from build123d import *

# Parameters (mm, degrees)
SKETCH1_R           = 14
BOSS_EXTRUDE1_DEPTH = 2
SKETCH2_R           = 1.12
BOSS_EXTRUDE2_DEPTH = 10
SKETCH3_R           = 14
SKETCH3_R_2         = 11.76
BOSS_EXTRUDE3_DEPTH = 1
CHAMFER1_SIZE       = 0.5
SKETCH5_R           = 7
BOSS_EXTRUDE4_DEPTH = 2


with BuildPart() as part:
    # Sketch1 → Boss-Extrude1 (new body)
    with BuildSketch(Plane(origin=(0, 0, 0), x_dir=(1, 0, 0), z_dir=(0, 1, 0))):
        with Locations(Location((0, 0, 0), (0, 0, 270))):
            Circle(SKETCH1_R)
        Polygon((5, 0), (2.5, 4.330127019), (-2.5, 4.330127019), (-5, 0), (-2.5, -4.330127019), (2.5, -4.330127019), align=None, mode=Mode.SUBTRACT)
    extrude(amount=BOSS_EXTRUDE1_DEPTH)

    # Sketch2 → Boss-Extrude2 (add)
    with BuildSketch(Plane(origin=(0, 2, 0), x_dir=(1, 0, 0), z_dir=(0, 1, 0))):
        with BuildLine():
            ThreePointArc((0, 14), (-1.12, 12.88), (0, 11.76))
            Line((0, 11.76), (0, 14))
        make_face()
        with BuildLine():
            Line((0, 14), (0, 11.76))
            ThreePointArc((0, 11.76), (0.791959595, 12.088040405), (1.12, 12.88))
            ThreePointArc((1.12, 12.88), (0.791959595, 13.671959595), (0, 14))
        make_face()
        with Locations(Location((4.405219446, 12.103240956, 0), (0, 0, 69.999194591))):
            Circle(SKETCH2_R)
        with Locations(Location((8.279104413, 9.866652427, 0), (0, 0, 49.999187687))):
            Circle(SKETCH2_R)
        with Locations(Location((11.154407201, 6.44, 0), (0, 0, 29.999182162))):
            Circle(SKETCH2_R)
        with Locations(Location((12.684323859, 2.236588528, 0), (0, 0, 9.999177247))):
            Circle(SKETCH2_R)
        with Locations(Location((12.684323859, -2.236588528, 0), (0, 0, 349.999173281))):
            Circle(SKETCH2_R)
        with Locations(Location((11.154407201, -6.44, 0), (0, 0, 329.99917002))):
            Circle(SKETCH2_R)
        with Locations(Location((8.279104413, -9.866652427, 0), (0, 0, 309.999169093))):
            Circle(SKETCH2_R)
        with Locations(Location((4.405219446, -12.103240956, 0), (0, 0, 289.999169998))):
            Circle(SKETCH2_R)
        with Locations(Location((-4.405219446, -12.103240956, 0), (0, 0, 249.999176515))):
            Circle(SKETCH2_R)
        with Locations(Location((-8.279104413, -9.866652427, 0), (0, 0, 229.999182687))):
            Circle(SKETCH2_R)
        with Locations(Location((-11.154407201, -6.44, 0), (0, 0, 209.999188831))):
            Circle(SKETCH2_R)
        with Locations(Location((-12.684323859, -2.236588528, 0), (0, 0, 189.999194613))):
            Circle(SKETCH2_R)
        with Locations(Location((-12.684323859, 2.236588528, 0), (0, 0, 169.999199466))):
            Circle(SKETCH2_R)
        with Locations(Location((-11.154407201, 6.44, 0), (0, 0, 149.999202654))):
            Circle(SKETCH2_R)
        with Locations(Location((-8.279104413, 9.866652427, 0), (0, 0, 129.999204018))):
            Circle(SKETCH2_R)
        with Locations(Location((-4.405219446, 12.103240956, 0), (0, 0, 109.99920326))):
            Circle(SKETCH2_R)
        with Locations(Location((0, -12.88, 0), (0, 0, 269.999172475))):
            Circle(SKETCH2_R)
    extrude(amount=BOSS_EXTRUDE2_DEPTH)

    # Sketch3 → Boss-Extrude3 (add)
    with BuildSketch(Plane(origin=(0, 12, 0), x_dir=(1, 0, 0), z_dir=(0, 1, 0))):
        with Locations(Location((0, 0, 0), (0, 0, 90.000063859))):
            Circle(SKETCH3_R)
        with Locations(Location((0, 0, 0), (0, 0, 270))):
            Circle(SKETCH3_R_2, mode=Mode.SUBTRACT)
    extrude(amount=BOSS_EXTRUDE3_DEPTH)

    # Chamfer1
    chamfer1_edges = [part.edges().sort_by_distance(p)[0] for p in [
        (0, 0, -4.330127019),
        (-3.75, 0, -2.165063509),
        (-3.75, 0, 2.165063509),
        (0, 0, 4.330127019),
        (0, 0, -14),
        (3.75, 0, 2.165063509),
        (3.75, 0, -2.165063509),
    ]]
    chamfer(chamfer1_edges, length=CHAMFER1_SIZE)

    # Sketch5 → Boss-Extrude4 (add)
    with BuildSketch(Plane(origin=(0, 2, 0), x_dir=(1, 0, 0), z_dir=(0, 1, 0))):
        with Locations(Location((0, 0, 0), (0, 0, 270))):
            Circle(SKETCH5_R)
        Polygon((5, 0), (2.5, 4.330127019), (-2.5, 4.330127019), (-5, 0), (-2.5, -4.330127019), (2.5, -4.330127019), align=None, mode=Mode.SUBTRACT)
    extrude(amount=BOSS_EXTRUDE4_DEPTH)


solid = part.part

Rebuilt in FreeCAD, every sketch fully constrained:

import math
import FreeCAD as App
import Part
import Sketcher
from FreeCAD import Vector
Q = App.Units.Quantity


def edges_at(feature, points):
    """Names of the edges that pass closest to the given points."""
    edges = feature.Shape.Edges
    near = lambda p: min(range(len(edges)), key=lambda i: edges[i].distToShape(Part.Vertex(*p))[0])
    return sorted({f"Edge{near(p) + 1}" for p in points})

doc = App.newDocument("Part")
body = doc.addObject("PartDesign::Body", "Body")

# Sketch on XZ plane
sketch1 = body.newObject("Sketcher::SketchObject", "Sketch")
sketch1.AttachmentSupport = (doc.getObject("XZ_Plane"), [""])
sketch1.MapMode = "FlatFace"
sketch1.addGeometry([
    Part.Circle(Vector(0, 0, 0), Vector(0, 0, 1), 14),  # 0
    Part.LineSegment(Vector(2.5, -4.330127, 0), Vector(5, 0, 0)),  # 1
    Part.LineSegment(Vector(5, 0, 0), Vector(2.5, 4.330127, 0)),  # 2
    Part.LineSegment(Vector(2.5, 4.330127, 0), Vector(-2.5, 4.330127, 0)),  # 3
    Part.LineSegment(Vector(-2.5, 4.330127, 0), Vector(-5, 0, 0)),  # 4
    Part.LineSegment(Vector(-5, 0, 0), Vector(-2.5, -4.330127, 0)),  # 5
    Part.LineSegment(Vector(-2.5, -4.330127, 0), Vector(2.5, -4.330127, 0)),  # 6
], False)
sketch1.addConstraint([
    Sketcher.Constraint("Coincident", 1, 2, 2, 1),
    Sketcher.Constraint("Coincident", 2, 2, 3, 1),
    Sketcher.Constraint("Coincident", 3, 2, 4, 1),
    Sketcher.Constraint("Coincident", 4, 2, 5, 1),
    Sketcher.Constraint("Coincident", 5, 2, 6, 1),
    Sketcher.Constraint("Coincident", 6, 2, 1, 1),
    Sketcher.Constraint("Horizontal", 3),
    Sketcher.Constraint("Horizontal", 6),
    Sketcher.Constraint("Coincident", 0, 3, -1, 1),
    Sketcher.Constraint("Symmetric", 1, 2, 4, 2, -1, 1),
    Sketcher.Constraint("Symmetric", 2, 2, 5, 2, -1, 1),
    Sketcher.Constraint("PointOnObject", 1, 2, -1),
    Sketcher.Constraint("Parallel", 1, 4),
    Sketcher.Constraint("Vertical", 3, 2, 5, 2),
    Sketcher.Constraint("Diameter", 0, Q("28 mm")),
    Sketcher.Constraint("DistanceX", 3, 2, 3, 1, Q("5 mm")),
    Sketcher.Constraint("Angle", 1, Q("60 deg")),
    Sketcher.Constraint("Distance", 1, Q("5 mm")),
])
pad1 = body.newObject("PartDesign::Pad", "Pad")
pad1.Profile = sketch1
pad1.Length = 2
pad1.Reversed = True

# Sketch on XZ plane
sketch2 = body.newObject("Sketcher::SketchObject", "Sketch001")
sketch2.AttachmentSupport = (doc.getObject("XZ_Plane"), [""])
sketch2.MapMode = "FlatFace"
sketch2.AttachmentOffset = App.Placement(Vector(0, 0, -2), App.Rotation())
sketch2.addGeometry([
    Part.ArcOfCircle(Part.Circle(Vector(0, -12.88, 0), Vector(0, 0, 1), 1.12), math.radians(90), math.radians(270)),  # 0
    Part.ArcOfCircle(Part.Circle(Vector(0, -12.88, 0), Vector(0, 0, 1), 1.12), math.radians(0), math.radians(90)),  # 1
    Part.ArcOfCircle(Part.Circle(Vector(0, -12.88, 0), Vector(0, 0, 1), 1.12), math.radians(-90), math.radians(0)),  # 2
    Part.Circle(Vector(4.405219, -12.103241, 0), Vector(0, 0, 1), 1.12),  # 3
    Part.Circle(Vector(8.279104, -9.866652, 0), Vector(0, 0, 1), 1.12),  # 4
    Part.Circle(Vector(11.154407, -6.44, 0), Vector(0, 0, 1), 1.12),  # 5
    Part.Circle(Vector(12.684324, -2.236589, 0), Vector(0, 0, 1), 1.12),  # 6
    Part.Circle(Vector(12.684324, 2.236589, 0), Vector(0, 0, 1), 1.12),  # 7
    Part.Circle(Vector(11.154407, 6.44, 0), Vector(0, 0, 1), 1.12),  # 8
    Part.Circle(Vector(8.279104, 9.866652, 0), Vector(0, 0, 1), 1.12),  # 9
    Part.Circle(Vector(4.405219, 12.103241, 0), Vector(0, 0, 1), 1.12),  # 10
    Part.Circle(Vector(-4.405219, 12.103241, 0), Vector(0, 0, 1), 1.12),  # 11
    Part.Circle(Vector(-8.279104, 9.866652, 0), Vector(0, 0, 1), 1.12),  # 12
    Part.Circle(Vector(-11.154407, 6.44, 0), Vector(0, 0, 1), 1.12),  # 13
    Part.Circle(Vector(-12.684324, 2.236589, 0), Vector(0, 0, 1), 1.12),  # 14
    Part.Circle(Vector(-12.684324, -2.236589, 0), Vector(0, 0, 1), 1.12),  # 15
    Part.Circle(Vector(-11.154407, -6.44, 0), Vector(0, 0, 1), 1.12),  # 16
    Part.Circle(Vector(-8.279104, -9.866652, 0), Vector(0, 0, 1), 1.12),  # 17
    Part.Circle(Vector(-4.405219, -12.103241, 0), Vector(0, 0, 1), 1.12),  # 18
    Part.Circle(Vector(0, 12.88, 0), Vector(0, 0, 1), 1.12),  # 19
], False)
sketch2.addConstraint([
    Sketcher.Constraint("Tangent", 0, 1, 1, 2),
    Sketcher.Constraint("Tangent", 1, 1, 2, 2),
    Sketcher.Constraint("Tangent", 2, 1, 0, 2),
    Sketcher.Constraint("Equal", 2, 3),
    Sketcher.Constraint("Equal", 3, 4),
    Sketcher.Constraint("Equal", 4, 5),
    Sketcher.Constraint("Equal", 5, 6),
    Sketcher.Constraint("Equal", 6, 7),
    Sketcher.Constraint("Equal", 7, 8),
    Sketcher.Constraint("Equal", 8, 9),
    Sketcher.Constraint("Equal", 9, 10),
    Sketcher.Constraint("Equal", 10, 11),
    Sketcher.Constraint("Equal", 11, 12),
    Sketcher.Constraint("Equal", 12, 13),
    Sketcher.Constraint("Equal", 13, 14),
    Sketcher.Constraint("Equal", 14, 15),
    Sketcher.Constraint("Equal", 15, 16),
    Sketcher.Constraint("Equal", 16, 17),
    Sketcher.Constraint("Equal", 17, 18),
    Sketcher.Constraint("Equal", 18, 19),
    Sketcher.Constraint("Symmetric", 3, 3, 11, 3, -1, 1),
    Sketcher.Constraint("Symmetric", 4, 3, 12, 3, -1, 1),
    Sketcher.Constraint("Symmetric", 5, 3, 13, 3, -1, 1),
    Sketcher.Constraint("Symmetric", 6, 3, 14, 3, -1, 1),
    Sketcher.Constraint("Symmetric", 7, 3, 15, 3, -1, 1),
    Sketcher.Constraint("Symmetric", 8, 3, 16, 3, -1, 1),
    Sketcher.Constraint("Symmetric", 9, 3, 17, 3, -1, 1),
    Sketcher.Constraint("Symmetric", 10, 3, 18, 3, -1, 1),
    Sketcher.Constraint("Symmetric", 0, 3, 19, 3, -1, 1),
    Sketcher.Constraint("Symmetric", 10, 3, 11, 3, -2),
    Sketcher.Constraint("Symmetric", 9, 3, 12, 3, -2),
    Sketcher.Constraint("Symmetric", 8, 3, 13, 3, -2),
    Sketcher.Constraint("Symmetric", 7, 3, 14, 3, -2),
    Sketcher.Constraint("PointOnObject", 0, 3, -2),
    Sketcher.Constraint("PointOnObject", 0, 1, -2),
    Sketcher.Constraint("PointOnObject", 2, 1, -2),
    Sketcher.Constraint("Horizontal", 2, 3, 1, 1),
    Sketcher.Constraint("Diameter", 3, Q("2.24 mm")),
    Sketcher.Constraint("DistanceY", 2, 1, -1, 1, Q("14 mm")),
    Sketcher.Constraint("DistanceY", 5, 3, -1, 1, Q("6.44 mm")),
    Sketcher.Constraint("DistanceX", -1, 1, 3, 3, Q("4.405219 mm")),
    Sketcher.Constraint("DistanceY", 3, 3, -1, 1, Q("12.103241 mm")),
    Sketcher.Constraint("DistanceY", 6, 3, -1, 1, Q("2.236589 mm")),
    Sketcher.Constraint("DistanceY", 3, 3, 4, 3, Q("2.236589 mm")),
    Sketcher.Constraint("DistanceX", 4, 3, 6, 3, Q("4.405219 mm")),
    Sketcher.Constraint("DistanceX", 12, 3, 9, 3, Q("16.558209 mm")),
    Sketcher.Constraint("DistanceX", 12, 3, 8, 3, Q("19.433512 mm")),
])
pad2 = body.newObject("PartDesign::Pad", "Pad001")
pad2.Profile = sketch2
pad2.Length = 10
pad2.Reversed = True

# Sketch on XZ plane
sketch3 = body.newObject("Sketcher::SketchObject", "Sketch002")
sketch3.AttachmentSupport = (doc.getObject("XZ_Plane"), [""])
sketch3.MapMode = "FlatFace"
sketch3.AttachmentOffset = App.Placement(Vector(0, 0, -12), App.Rotation())
sketch3.addGeometry([
    Part.Circle(Vector(0, 0, 0), Vector(0, 0, 1), 14),
    Part.Circle(Vector(0, 0, 0), Vector(0, 0, 1), 11.76),
], False)
sketch3.addConstraint([
    Sketcher.Constraint("Coincident", 0, 3, -1, 1),
    Sketcher.Constraint("Coincident", 1, 3, -1, 1),
    Sketcher.Constraint("Diameter", 0, Q("28 mm")),
    Sketcher.Constraint("Diameter", 1, Q("23.52 mm")),
])
pad3 = body.newObject("PartDesign::Pad", "Pad002")
pad3.Profile = sketch3
pad3.Length = 1
pad3.Reversed = True
doc.recompute()

chamfer = body.newObject("PartDesign::Chamfer", "Chamfer")
chamfer.Base = (pad3, edges_at(pad3, [
    (0, 0, -4.33),
    (-3.75, 0, -2.165),
    (-3.75, 0, 2.165),
    (0, 0, 4.33),
    (0, 0, -14),
    (3.75, 0, 2.165),
    (3.75, 0, -2.165),
]))
chamfer.Size = 0.5

# Sketch on XZ plane
sketch4 = body.newObject("Sketcher::SketchObject", "Sketch003")
sketch4.AttachmentSupport = (doc.getObject("XZ_Plane"), [""])
sketch4.MapMode = "FlatFace"
sketch4.AttachmentOffset = App.Placement(Vector(0, 0, -2), App.Rotation())
sketch4.addGeometry([
    Part.Circle(Vector(0, 0, 0), Vector(0, 0, 1), 7),  # 0
    Part.LineSegment(Vector(2.5, -4.330127, 0), Vector(5, 0, 0)),  # 1
    Part.LineSegment(Vector(5, 0, 0), Vector(2.5, 4.330127, 0)),  # 2
    Part.LineSegment(Vector(2.5, 4.330127, 0), Vector(-2.5, 4.330127, 0)),  # 3
    Part.LineSegment(Vector(-2.5, 4.330127, 0), Vector(-5, 0, 0)),  # 4
    Part.LineSegment(Vector(-5, 0, 0), Vector(-2.5, -4.330127, 0)),  # 5
    Part.LineSegment(Vector(-2.5, -4.330127, 0), Vector(2.5, -4.330127, 0)),  # 6
], False)
sketch4.addConstraint([
    Sketcher.Constraint("Coincident", 1, 2, 2, 1),
    Sketcher.Constraint("Coincident", 2, 2, 3, 1),
    Sketcher.Constraint("Coincident", 3, 2, 4, 1),
    Sketcher.Constraint("Coincident", 4, 2, 5, 1),
    Sketcher.Constraint("Coincident", 5, 2, 6, 1),
    Sketcher.Constraint("Coincident", 6, 2, 1, 1),
    Sketcher.Constraint("Horizontal", 3),
    Sketcher.Constraint("Horizontal", 6),
    Sketcher.Constraint("Coincident", 0, 3, -1, 1),
    Sketcher.Constraint("Symmetric", 1, 2, 4, 2, -1, 1),
    Sketcher.Constraint("Symmetric", 2, 2, 5, 2, -1, 1),
    Sketcher.Constraint("PointOnObject", 1, 2, -1),
    Sketcher.Constraint("Parallel", 1, 4),
    Sketcher.Constraint("Vertical", 3, 2, 5, 2),
    Sketcher.Constraint("Diameter", 0, Q("14 mm")),
    Sketcher.Constraint("DistanceX", 3, 2, 3, 1, Q("5 mm")),
    Sketcher.Constraint("Angle", 1, Q("60 deg")),
    Sketcher.Constraint("Distance", 1, Q("5 mm")),
])
pad4 = body.newObject("PartDesign::Pad", "Pad003")
pad4.Profile = sketch4
pad4.Length = 2
pad4.Reversed = True

doc.recompute()
